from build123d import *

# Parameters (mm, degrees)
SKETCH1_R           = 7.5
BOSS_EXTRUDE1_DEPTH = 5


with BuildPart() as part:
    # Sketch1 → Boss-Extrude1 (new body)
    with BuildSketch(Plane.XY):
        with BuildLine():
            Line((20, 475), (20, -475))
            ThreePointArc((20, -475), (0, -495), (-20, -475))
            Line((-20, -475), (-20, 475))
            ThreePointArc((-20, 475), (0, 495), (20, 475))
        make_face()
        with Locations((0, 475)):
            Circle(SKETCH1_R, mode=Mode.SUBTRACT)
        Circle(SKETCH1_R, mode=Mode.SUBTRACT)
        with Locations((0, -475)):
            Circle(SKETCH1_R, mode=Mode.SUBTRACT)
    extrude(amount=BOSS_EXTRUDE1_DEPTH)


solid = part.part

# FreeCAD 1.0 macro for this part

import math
import FreeCAD as App
import Part
import Sketcher
Q = App.Units.Quantity

doc = App.newDocument("Part")
params = doc.addObject("Spreadsheet::Sheet", "Params")
for row, (alias, value) in enumerate([
    ("sketch1_diameter", "15 mm"),
    ("sketch1_radius", "20 mm"),
    ("sketch1_height", "950 mm"),
    ("pad1_length", "5 mm"),
], start=1):
    params.set(f"A{row}", alias)
    params.set(f"B{row}", "=" + value)
    params.setAlias(f"B{row}", alias)

body = doc.addObject("PartDesign::Body", "Body")

# Sketch on XY plane
sketch1 = body.newObject("Sketcher::SketchObject", "Sketch")
sketch1.AttachmentSupport = (doc.getObject("XY_Plane"), [""])
sketch1.MapMode = "FlatFace"
sketch1.addGeometry(Part.LineSegment(App.Vector(20, -475, 0), App.Vector(20, 475, 0)), False)
sketch1.addGeometry(Part.ArcOfCircle(Part.Circle(App.Vector(0, 475, 0), App.Vector(0, 0, 1), 20), math.radians(0), math.radians(180)), False)
sketch1.addGeometry(Part.LineSegment(App.Vector(-20, 475, 0), App.Vector(-20, -475, 0)), False)
sketch1.addGeometry(Part.ArcOfCircle(Part.Circle(App.Vector(0, -475, 0), App.Vector(0, 0, 1), 20), math.radians(180), math.radians(360)), False)
sketch1.addGeometry(Part.Circle(App.Vector(0, -475, 0), App.Vector(0, 0, 1), 8), False)
sketch1.addGeometry(Part.Circle(App.Vector(0, 0, 0), App.Vector(0, 0, 1), 8), False)
sketch1.addGeometry(Part.Circle(App.Vector(0, 475, 0), App.Vector(0, 0, 1), 8), False)
sketch1.addConstraint(Sketcher.Constraint("Tangent", 0, 2, 1, 1))
sketch1.addConstraint(Sketcher.Constraint("Tangent", 1, 2, 2, 1))
sketch1.addConstraint(Sketcher.Constraint("Tangent", 2, 2, 3, 1))
sketch1.addConstraint(Sketcher.Constraint("Tangent", 3, 2, 0, 1))
sketch1.addConstraint(Sketcher.Constraint("Vertical", 0))
sketch1.addConstraint(Sketcher.Constraint("Vertical", 2))
sketch1.addConstraint(Sketcher.Constraint("Coincident", 5, 3, -1, 1))
sketch1.addConstraint(Sketcher.Constraint("Coincident", 4, 3, 3, 3))
sketch1.addConstraint(Sketcher.Constraint("Coincident", 6, 3, 1, 3))
sketch1.addConstraint(Sketcher.Constraint("Equal", 4, 5))
sketch1.addConstraint(Sketcher.Constraint("Equal", 5, 6))
sketch1.addConstraint(Sketcher.Constraint("Symmetric", 1, 3, 3, 3, -1, 1))
sketch1.addConstraint(Sketcher.Constraint("Diameter", 4, Q("15 mm")))
sketch1.addConstraint(Sketcher.Constraint("Radius", 1, Q("20 mm")))
sketch1.addConstraint(Sketcher.Constraint("DistanceY", 0, 1, 0, 2, Q("950 mm")))
sketch1.setExpression("Constraints[12]", "Params.sketch1_diameter")
sketch1.setExpression("Constraints[13]", "Params.sketch1_radius")
sketch1.setExpression("Constraints[14]", "Params.sketch1_height")
pad1 = body.newObject("PartDesign::Pad", "Pad")
pad1.Profile = sketch1
pad1.setExpression("Length", "Params.pad1_length")

doc.recompute()
